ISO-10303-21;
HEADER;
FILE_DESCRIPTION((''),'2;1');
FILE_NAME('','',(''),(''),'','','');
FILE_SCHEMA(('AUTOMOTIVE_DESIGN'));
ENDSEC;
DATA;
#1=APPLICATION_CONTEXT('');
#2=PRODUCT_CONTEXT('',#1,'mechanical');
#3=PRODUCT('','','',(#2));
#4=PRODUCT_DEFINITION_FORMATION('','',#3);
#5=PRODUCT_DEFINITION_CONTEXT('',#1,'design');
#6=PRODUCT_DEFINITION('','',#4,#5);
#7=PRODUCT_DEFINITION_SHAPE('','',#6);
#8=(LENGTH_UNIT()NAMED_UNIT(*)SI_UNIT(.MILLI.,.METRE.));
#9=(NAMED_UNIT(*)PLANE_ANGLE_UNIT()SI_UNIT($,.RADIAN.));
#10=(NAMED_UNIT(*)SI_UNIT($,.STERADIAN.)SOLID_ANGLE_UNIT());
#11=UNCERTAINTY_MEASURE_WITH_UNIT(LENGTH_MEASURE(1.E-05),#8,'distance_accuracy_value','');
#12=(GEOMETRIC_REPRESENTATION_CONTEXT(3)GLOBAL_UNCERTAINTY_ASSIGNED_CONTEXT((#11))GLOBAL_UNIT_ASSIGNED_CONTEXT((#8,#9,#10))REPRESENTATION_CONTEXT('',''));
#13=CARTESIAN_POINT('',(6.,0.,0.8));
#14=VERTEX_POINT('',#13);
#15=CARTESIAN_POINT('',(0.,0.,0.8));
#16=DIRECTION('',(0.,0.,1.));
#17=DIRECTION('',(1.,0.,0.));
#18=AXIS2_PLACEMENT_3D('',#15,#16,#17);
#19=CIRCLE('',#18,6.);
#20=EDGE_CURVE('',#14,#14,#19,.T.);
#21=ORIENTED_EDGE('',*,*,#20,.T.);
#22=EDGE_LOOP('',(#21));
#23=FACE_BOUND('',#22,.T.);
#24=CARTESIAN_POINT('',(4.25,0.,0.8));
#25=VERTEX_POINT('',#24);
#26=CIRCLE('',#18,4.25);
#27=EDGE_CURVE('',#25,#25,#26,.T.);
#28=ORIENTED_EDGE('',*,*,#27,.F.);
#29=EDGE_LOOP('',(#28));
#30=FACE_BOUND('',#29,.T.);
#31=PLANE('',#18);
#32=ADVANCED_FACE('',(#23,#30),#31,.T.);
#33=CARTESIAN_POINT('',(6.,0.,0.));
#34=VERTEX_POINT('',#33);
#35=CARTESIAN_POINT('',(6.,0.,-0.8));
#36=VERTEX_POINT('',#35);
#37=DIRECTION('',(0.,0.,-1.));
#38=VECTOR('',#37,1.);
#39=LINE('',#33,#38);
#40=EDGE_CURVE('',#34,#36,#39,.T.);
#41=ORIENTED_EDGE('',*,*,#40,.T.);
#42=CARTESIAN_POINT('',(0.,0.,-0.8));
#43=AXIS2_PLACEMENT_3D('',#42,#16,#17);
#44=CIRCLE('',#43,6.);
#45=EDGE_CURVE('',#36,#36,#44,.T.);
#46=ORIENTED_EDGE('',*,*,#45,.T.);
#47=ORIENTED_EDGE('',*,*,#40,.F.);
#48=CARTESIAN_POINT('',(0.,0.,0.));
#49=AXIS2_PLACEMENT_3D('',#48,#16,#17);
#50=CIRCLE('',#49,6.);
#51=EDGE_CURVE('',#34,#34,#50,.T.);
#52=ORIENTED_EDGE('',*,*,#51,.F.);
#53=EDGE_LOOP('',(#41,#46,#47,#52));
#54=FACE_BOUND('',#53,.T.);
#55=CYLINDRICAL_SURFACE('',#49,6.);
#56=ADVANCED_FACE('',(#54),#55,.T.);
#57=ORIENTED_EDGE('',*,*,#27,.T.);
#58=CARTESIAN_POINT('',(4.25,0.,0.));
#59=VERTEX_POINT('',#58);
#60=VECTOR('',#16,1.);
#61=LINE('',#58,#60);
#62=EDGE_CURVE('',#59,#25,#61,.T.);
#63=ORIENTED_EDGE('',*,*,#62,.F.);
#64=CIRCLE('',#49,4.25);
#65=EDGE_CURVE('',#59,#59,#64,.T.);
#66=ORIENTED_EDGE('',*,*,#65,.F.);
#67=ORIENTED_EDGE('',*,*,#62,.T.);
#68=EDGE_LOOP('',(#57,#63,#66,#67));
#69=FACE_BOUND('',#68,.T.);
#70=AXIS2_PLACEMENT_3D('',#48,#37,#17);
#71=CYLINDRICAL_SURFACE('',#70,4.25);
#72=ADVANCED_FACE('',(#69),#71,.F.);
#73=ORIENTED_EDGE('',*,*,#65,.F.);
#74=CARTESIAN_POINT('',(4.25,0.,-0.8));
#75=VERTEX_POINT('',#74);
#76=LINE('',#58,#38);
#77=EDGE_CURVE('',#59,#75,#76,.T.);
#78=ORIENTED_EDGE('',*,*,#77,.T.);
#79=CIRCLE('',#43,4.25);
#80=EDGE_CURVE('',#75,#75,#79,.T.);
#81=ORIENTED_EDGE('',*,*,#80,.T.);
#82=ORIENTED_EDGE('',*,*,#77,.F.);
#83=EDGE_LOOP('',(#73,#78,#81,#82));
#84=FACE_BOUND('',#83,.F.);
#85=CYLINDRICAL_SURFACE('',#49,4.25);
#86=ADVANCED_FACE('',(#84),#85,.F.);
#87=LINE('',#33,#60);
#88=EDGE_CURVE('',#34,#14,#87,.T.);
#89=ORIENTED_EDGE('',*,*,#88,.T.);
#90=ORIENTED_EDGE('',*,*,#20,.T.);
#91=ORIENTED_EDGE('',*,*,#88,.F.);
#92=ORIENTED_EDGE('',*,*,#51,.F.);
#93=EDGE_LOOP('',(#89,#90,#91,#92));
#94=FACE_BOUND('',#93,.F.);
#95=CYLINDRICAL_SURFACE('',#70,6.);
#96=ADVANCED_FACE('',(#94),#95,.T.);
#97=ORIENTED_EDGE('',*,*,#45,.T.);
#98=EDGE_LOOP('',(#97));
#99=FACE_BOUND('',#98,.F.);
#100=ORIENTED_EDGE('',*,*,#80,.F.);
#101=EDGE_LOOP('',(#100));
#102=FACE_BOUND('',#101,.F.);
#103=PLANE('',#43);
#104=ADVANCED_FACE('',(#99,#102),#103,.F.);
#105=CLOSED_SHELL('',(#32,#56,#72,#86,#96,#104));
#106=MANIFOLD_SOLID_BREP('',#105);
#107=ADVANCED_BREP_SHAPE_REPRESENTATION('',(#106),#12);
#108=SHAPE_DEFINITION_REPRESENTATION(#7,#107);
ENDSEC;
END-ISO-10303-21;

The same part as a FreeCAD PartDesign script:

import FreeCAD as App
import Part
import Sketcher
Q = App.Units.Quantity

doc = App.newDocument("Part")
body = doc.addObject("PartDesign::Body", "Body")

sketch1 = body.newObject("Sketcher::SketchObject", "Sketch")
sketch1.AttachmentSupport = (doc.getObject("XY_Plane"), [""])
sketch1.MapMode = "FlatFace"
sketch1.addGeometry([
    Part.Circle(App.Vector(0, 0, 0), App.Vector(0, 0, 1), 6),
    Part.Circle(App.Vector(0, 0, 0), App.Vector(0, 0, 1), 4.2),
], False)
sketch1.addConstraint([
    Sketcher.Constraint("Coincident", 0, 3, -1, 1),
    Sketcher.Constraint("Coincident", 1, 3, -1, 1),
    Sketcher.Constraint("Diameter", 0, Q("12 mm")),
    Sketcher.Constraint("Diameter", 1, Q("8.5 mm")),
])
pad1 = body.newObject("PartDesign::Pad", "Pad")
pad1.Profile = sketch1
pad1.Length = 1.6
pad1.Midplane = True

doc.recompute()
